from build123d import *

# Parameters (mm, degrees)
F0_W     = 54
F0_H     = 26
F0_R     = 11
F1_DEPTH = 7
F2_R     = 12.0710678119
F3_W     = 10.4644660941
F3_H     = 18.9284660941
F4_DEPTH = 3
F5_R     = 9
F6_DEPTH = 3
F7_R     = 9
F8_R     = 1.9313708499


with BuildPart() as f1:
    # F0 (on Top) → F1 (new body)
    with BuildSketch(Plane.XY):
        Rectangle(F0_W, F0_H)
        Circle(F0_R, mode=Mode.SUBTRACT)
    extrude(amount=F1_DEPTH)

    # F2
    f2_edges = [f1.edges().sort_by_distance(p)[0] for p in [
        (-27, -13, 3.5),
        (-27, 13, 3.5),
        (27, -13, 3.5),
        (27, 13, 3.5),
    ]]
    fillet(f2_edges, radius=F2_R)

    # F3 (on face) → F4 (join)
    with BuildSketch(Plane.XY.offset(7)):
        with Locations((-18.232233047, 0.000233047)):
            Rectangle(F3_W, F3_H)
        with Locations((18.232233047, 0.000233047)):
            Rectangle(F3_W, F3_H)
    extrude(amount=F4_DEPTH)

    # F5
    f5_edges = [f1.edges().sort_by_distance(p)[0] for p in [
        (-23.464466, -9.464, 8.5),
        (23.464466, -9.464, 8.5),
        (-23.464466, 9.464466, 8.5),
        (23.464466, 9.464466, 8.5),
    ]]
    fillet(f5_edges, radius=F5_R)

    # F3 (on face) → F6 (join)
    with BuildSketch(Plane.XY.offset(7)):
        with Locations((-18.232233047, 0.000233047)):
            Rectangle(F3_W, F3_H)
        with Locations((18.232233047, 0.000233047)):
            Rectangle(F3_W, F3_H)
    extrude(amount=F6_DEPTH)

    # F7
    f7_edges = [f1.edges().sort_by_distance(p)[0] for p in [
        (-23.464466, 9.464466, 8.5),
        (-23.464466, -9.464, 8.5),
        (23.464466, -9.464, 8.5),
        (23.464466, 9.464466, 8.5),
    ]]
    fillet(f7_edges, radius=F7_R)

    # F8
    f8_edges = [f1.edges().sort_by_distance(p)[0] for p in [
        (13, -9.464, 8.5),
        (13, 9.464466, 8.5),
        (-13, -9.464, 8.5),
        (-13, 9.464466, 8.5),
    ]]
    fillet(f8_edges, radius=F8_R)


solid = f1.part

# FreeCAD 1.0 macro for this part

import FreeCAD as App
import Part
import Sketcher

V = App.Vector
Q = App.Units.Quantity


def edges_at(feature, points):
    """Names of the edges that pass closest to the given points."""
    edges = feature.Shape.Edges
    near = lambda p: min(range(len(edges)), key=lambda i: edges[i].distToShape(Part.Vertex(*p))[0])
    return sorted({f"Edge{near(p) + 1}" for p in points})

doc = App.newDocument("Part")
body = doc.addObject("PartDesign::Body", "Body")

# Sketch on XY plane
sketch1 = body.newObject("Sketcher::SketchObject", "Sketch")
sketch1.AttachmentSupport = (doc.getObject("XY_Plane"), [""])
sketch1.MapMode = "FlatFace"
sketch1.addGeometry([
    Part.LineSegment(V(-27, 13, 0), V(-27, -13, 0)),  # 0
    Part.LineSegment(V(-27, -13, 0), V(27, -13, 0)),  # 1
    Part.LineSegment(V(27, -13, 0), V(27, 13, 0)),  # 2
    Part.LineSegment(V(27, 13, 0), V(-27, 13, 0)),  # 3
    Part.Circle(V(0, 0, 0), V(0, 0, 1), 11),  # 4
], False)
sketch1.addConstraint([
    Sketcher.Constraint("Coincident", 0, 2, 1, 1),
    Sketcher.Constraint("Coincident", 1, 2, 2, 1),
    Sketcher.Constraint("Coincident", 2, 2, 3, 1),
    Sketcher.Constraint("Coincident", 3, 2, 0, 1),
    Sketcher.Constraint("Vertical", 0),
    Sketcher.Constraint("Horizontal", 1),
    Sketcher.Constraint("Vertical", 2),
    Sketcher.Constraint("Horizontal", 3),
    Sketcher.Constraint("Coincident", 4, 3, -1, 1),
    Sketcher.Constraint("Symmetric", 0, 2, 2, 2, -1, 1),
    Sketcher.Constraint("Diameter", 4, Q("22 mm")),
    Sketcher.Constraint("DistanceX", 1, 1, 1, 2, Q("54 mm")),
    Sketcher.Constraint("DistanceY", 0, 2, 0, 1, Q("26 mm")),
])
pad1 = body.newObject("PartDesign::Pad", "Pad")
pad1.Profile = sketch1
pad1.Length = 7
doc.recompute()

fillet = body.newObject("PartDesign::Fillet", "Fillet")
fillet.Base = (pad1, edges_at(pad1, [
    (-27, -13, 3.5),
    (-27, 13, 3.5),
    (27, -13, 3.5),
    (27, 13, 3.5),
]))
fillet.Radius = 12.071068

# Sketch on XY plane
sketch2 = body.newObject("Sketcher::SketchObject", "Sketch001")
sketch2.AttachmentSupport = (doc.getObject("XY_Plane"), [""])
sketch2.MapMode = "FlatFace"
sketch2.AttachmentOffset = App.Placement(V(0, 0, 7), App.Rotation())
sketch2.addGeometry([
    Part.LineSegment(V(-23, 9, 0), V(-23, -9, 0)),  # 0
    Part.LineSegment(V(-23, -9, 0), V(-13, -9, 0)),  # 1
    Part.LineSegment(V(-13, -9, 0), V(-13, 9, 0)),  # 2
    Part.LineSegment(V(-13, 9, 0), V(-23, 9, 0)),  # 3
    Part.LineSegment(V(13, 9, 0), V(13, -9, 0)),  # 4
    Part.LineSegment(V(13, -9, 0), V(23, -9, 0)),  # 5
    Part.LineSegment(V(23, -9, 0), V(23, 9, 0)),  # 6
    Part.LineSegment(V(23, 9, 0), V(13, 9, 0)),  # 7
], False)
sketch2.addConstraint([
    Sketcher.Constraint("Coincident", 0, 2, 1, 1),
    Sketcher.Constraint("Coincident", 1, 2, 2, 1),
    Sketcher.Constraint("Coincident", 2, 2, 3, 1),
    Sketcher.Constraint("Coincident", 3, 2, 0, 1),
    Sketcher.Constraint("Coincident", 4, 2, 5, 1),
    Sketcher.Constraint("Coincident", 5, 2, 6, 1),
    Sketcher.Constraint("Coincident", 6, 2, 7, 1),
    Sketcher.Constraint("Coincident", 7, 2, 4, 1),
    Sketcher.Constraint("Vertical", 0),
    Sketcher.Constraint("Horizontal", 1),
    Sketcher.Constraint("Vertical", 2),
    Sketcher.Constraint("Horizontal", 3),
    Sketcher.Constraint("Vertical", 4),
    Sketcher.Constraint("Horizontal", 5),
    Sketcher.Constraint("Vertical", 6),
    Sketcher.Constraint("Horizontal", 7),
    Sketcher.Constraint("Symmetric", 1, 2, 4, 2, -2),
    Sketcher.Constraint("Symmetric", 3, 2, 6, 2, -2),
    Sketcher.Constraint("DistanceX", 1, 2, -1, 1, Q("13 mm")),
    Sketcher.Constraint("DistanceY", 0, 2, -1, 1, Q("9.464 mm")),
    Sketcher.Constraint("DistanceX", 1, 1, 1, 2, Q("10.464466 mm")),
    Sketcher.Constraint("DistanceY", 0, 2, 0, 1, Q("18.928466 mm")),
])
pad2 = body.newObject("PartDesign::Pad", "Pad001")
pad2.Profile = sketch2
pad2.Length = 3
doc.recompute()

fillet2 = body.newObject("PartDesign::Fillet", "Fillet001")
fillet2.Base = (pad2, edges_at(pad2, [
    (-23.464, -9.464, 8.5),
    (23.464, -9.464, 8.5),
    (-23.464, 9.464, 8.5),
    (23.464, 9.464, 8.5),
]))
fillet2.Radius = 9

# Sketch on XY plane
sketch3 = body.newObject("Sketcher::SketchObject", "Sketch002")
sketch3.AttachmentSupport = (doc.getObject("XY_Plane"), [""])
sketch3.MapMode = "FlatFace"
sketch3.AttachmentOffset = App.Placement(V(0, 0, 7), App.Rotation())
sketch3.addGeometry([
    Part.LineSegment(V(-23, 9, 0), V(-23, -9, 0)),  # 0
    Part.LineSegment(V(-23, -9, 0), V(-13, -9, 0)),  # 1
    Part.LineSegment(V(-13, -9, 0), V(-13, 9, 0)),  # 2
    Part.LineSegment(V(-13, 9, 0), V(-23, 9, 0)),  # 3
    Part.LineSegment(V(13, 9, 0), V(13, -9, 0)),  # 4
    Part.LineSegment(V(13, -9, 0), V(23, -9, 0)),  # 5
    Part.LineSegment(V(23, -9, 0), V(23, 9, 0)),  # 6
    Part.LineSegment(V(23, 9, 0), V(13, 9, 0)),  # 7
], False)
sketch3.addConstraint([
    Sketcher.Constraint("Coincident", 0, 2, 1, 1),
    Sketcher.Constraint("Coincident", 1, 2, 2, 1),
    Sketcher.Constraint("Coincident", 2, 2, 3, 1),
    Sketcher.Constraint("Coincident", 3, 2, 0, 1),
    Sketcher.Constraint("Coincident", 4, 2, 5, 1),
    Sketcher.Constraint("Coincident", 5, 2, 6, 1),
    Sketcher.Constraint("Coincident", 6, 2, 7, 1),
    Sketcher.Constraint("Coincident", 7, 2, 4, 1),
    Sketcher.Constraint("Vertical", 0),
    Sketcher.Constraint("Horizontal", 1),
    Sketcher.Constraint("Vertical", 2),
    Sketcher.Constraint("Horizontal", 3),
    Sketcher.Constraint("Vertical", 4),
    Sketcher.Constraint("Horizontal", 5),
    Sketcher.Constraint("Vertical", 6),
    Sketcher.Constraint("Horizontal", 7),
    Sketcher.Constraint("Symmetric", 1, 2, 4, 2, -2),
    Sketcher.Constraint("Symmetric", 3, 2, 6, 2, -2),
    Sketcher.Constraint("DistanceX", 1, 2, -1, 1, Q("13 mm")),
    Sketcher.Constraint("DistanceY", 0, 2, -1, 1, Q("9.464 mm")),
    Sketcher.Constraint("DistanceX", 1, 1, 1, 2, Q("10.464466 mm")),
    Sketcher.Constraint("DistanceY", 0, 2, 0, 1, Q("18.928466 mm")),
])
pad3 = body.newObject("PartDesign::Pad", "Pad002")
pad3.Profile = sketch3
pad3.Length = 3
doc.recompute()

fillet3 = body.newObject("PartDesign::Fillet", "Fillet002")
fillet3.Base = (pad3, edges_at(pad3, [
    (-23.464, 9.464, 8.5),
    (-23.464, -9.464, 8.5),
    (23.464, -9.464, 8.5),
    (23.464, 9.464, 8.5),
]))
fillet3.Radius = 9
doc.recompute()

fillet4 = body.newObject("PartDesign::Fillet", "Fillet003")
fillet4.Base = (fillet3, edges_at(fillet3, [
    (13, -9.464, 8.5),
    (13, 9.464, 8.5),
    (-13, -9.464, 8.5),
    (-13, 9.464, 8.5),
]))
fillet4.Radius = 1.931371

doc.recompute()
